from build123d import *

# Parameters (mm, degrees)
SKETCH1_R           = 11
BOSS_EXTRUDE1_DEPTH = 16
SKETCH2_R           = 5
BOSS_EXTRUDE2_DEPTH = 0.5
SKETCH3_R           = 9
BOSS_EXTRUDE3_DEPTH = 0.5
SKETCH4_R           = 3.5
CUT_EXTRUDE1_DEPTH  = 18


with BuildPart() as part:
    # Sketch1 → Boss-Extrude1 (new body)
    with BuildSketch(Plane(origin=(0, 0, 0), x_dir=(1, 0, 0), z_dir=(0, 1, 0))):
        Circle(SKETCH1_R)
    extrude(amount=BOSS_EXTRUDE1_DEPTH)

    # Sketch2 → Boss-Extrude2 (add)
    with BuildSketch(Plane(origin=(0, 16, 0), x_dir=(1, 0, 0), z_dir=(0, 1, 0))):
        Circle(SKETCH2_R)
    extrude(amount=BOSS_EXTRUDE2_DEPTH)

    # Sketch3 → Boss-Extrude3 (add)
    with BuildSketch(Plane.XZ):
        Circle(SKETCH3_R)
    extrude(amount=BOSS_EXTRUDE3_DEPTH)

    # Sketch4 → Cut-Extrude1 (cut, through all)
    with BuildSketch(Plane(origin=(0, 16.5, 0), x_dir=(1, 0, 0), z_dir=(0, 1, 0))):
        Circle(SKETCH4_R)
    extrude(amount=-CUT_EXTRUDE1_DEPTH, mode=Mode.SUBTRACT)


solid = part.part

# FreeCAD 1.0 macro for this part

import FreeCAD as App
import Part
import Sketcher
Q = App.Units.Quantity

doc = App.newDocument("Part")
body = doc.addObject("PartDesign::Body", "Body")

# Sketch on XZ plane
sketch1 = doc.addObject("Sketcher::SketchObject", "Sketch")
body.addObject(sketch1)
sketch1.AttachmentSupport = (doc.XZ_Plane, [""])
sketch1.MapMode = "FlatFace"
sketch1.addGeometry(Part.Circle(App.Vector(0, 0, 0), App.Vector(0, 0, 1), 11), False)
sketch1.addConstraint([
    Sketcher.Constraint("Coincident", 0, 3, -1, 1),
    Sketcher.Constraint("Diameter", 0, Q("22 mm")),
])
pad1 = doc.addObject("PartDesign::Pad", "Pad")
body.addObject(pad1)
pad1.Profile = sketch1
pad1.Length = 16
pad1.Reversed = True

# Sketch on XZ plane
sketch2 = doc.addObject("Sketcher::SketchObject", "Sketch001")
body.addObject(sketch2)
sketch2.AttachmentSupport = (doc.XZ_Plane, [""])
sketch2.MapMode = "FlatFace"
sketch2.AttachmentOffset = App.Placement(App.Vector(0, 0, -16), App.Rotation())
sketch2.addGeometry(Part.Circle(App.Vector(0, 0, 0), App.Vector(0, 0, 1), 5), False)
sketch2.addConstraint([
    Sketcher.Constraint("Coincident", 0, 3, -1, 1),
    Sketcher.Constraint("Diameter", 0, Q("10 mm")),
])
pad2 = doc.addObject("PartDesign::Pad", "Pad001")
body.addObject(pad2)
pad2.Profile = sketch2
pad2.Length = 0.5
pad2.Reversed = True

# Sketch on XZ plane
sketch3 = doc.addObject("Sketcher::SketchObject", "Sketch002")
body.addObject(sketch3)
sketch3.AttachmentSupport = (doc.XZ_Plane, [""])
sketch3.MapMode = "FlatFace"
sketch3.addGeometry(Part.Circle(App.Vector(0, 0, 0), App.Vector(0, 0, 1), 9), False)
sketch3.addConstraint([
    Sketcher.Constraint("Coincident", 0, 3, -1, 1),
    Sketcher.Constraint("Diameter", 0, Q("18 mm")),
])
pad3 = doc.addObject("PartDesign::Pad", "Pad002")
body.addObject(pad3)
pad3.Profile = sketch3
pad3.Length = 0.5

# Sketch on XZ plane
sketch4 = doc.addObject("Sketcher::SketchObject", "Sketch003")
body.addObject(sketch4)
sketch4.AttachmentSupport = (doc.XZ_Plane, [""])
sketch4.MapMode = "FlatFace"
sketch4.AttachmentOffset = App.Placement(App.Vector(0, 0, -16.5), App.Rotation())
sketch4.addGeometry(Part.Circle(App.Vector(0, 0, 0), App.Vector(0, 0, 1), 3.5), False)
sketch4.addConstraint([
    Sketcher.Constraint("Coincident", 0, 3, -1, 1),
    Sketcher.Constraint("Diameter", 0, Q("7 mm")),
])
pocket1 = doc.addObject("PartDesign::Pocket", "Pocket")
body.addObject(pocket1)
pocket1.Profile = sketch4
pocket1.Type = "ThroughAll"
pocket1.Reversed = True

doc.recompute()
